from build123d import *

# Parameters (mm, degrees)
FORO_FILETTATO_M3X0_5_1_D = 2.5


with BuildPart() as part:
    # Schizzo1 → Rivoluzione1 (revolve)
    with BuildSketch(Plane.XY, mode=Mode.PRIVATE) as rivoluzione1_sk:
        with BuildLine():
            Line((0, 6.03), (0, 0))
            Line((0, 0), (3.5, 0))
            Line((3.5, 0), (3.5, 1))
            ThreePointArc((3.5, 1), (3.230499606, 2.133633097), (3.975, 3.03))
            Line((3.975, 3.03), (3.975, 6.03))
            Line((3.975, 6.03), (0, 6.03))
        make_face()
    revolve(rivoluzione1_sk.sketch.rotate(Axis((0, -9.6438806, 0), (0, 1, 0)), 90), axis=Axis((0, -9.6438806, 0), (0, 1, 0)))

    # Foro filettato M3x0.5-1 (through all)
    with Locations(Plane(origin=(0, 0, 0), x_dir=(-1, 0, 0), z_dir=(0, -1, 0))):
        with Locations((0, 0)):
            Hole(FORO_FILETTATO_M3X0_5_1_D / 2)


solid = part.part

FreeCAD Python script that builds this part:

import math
import FreeCAD as App
import Part
import Sketcher
Q = App.Units.Quantity

doc = App.newDocument("Part")
body = doc.addObject("PartDesign::Body", "Body")

sketch1 = doc.addObject("Sketcher::SketchObject", "Sketch")
body.addObject(sketch1)
sketch1.AttachmentSupport = (doc.XY_Plane, [""])
sketch1.MapMode = "FlatFace"
sketch1.addGeometry(Part.LineSegment(App.Vector(0, 6, 0), App.Vector(0, 0, 0)), False)
sketch1.addGeometry(Part.LineSegment(App.Vector(0, 0, 0), App.Vector(3.5, 0, 0)), False)
sketch1.addGeometry(Part.LineSegment(App.Vector(3.5, 0, 0), App.Vector(3.5, 1, 0)), False)
sketch1.addGeometry(Part.ArcOfCircle(Part.Circle(App.Vector(4.5, 1.8, 0), App.Vector(0, 0, 1), 1.3), math.radians(114), math.radians(220)), False)
sketch1.addGeometry(Part.LineSegment(App.Vector(4, 3, 0), App.Vector(4, 6, 0)), False)
sketch1.addGeometry(Part.LineSegment(App.Vector(4, 6, 0), App.Vector(0, 6, 0)), False)
sketch1.addConstraint(Sketcher.Constraint("Coincident", 0, 2, 1, 1))
sketch1.addConstraint(Sketcher.Constraint("Coincident", 1, 2, 2, 1))
sketch1.addConstraint(Sketcher.Constraint("Coincident", 2, 2, 3, 2))
sketch1.addConstraint(Sketcher.Constraint("Coincident", 3, 1, 4, 1))
sketch1.addConstraint(Sketcher.Constraint("Coincident", 4, 2, 5, 1))
sketch1.addConstraint(Sketcher.Constraint("Coincident", 5, 2, 0, 1))
sketch1.addConstraint(Sketcher.Constraint("Vertical", 0))
sketch1.addConstraint(Sketcher.Constraint("Horizontal", 1))
sketch1.addConstraint(Sketcher.Constraint("Vertical", 2))
sketch1.addConstraint(Sketcher.Constraint("Vertical", 4))
sketch1.addConstraint(Sketcher.Constraint("Horizontal", 5))
sketch1.addConstraint(Sketcher.Constraint("Coincident", 0, 2, -1, 1))
sketch1.addConstraint(Sketcher.Constraint("DistanceY", 2, 1, 2, 2, Q("1 mm")))
sketch1.addConstraint(Sketcher.Constraint("DistanceY", 4, 1, 4, 2, Q("3 mm")))
sketch1.addConstraint(Sketcher.Constraint("DistanceX", 1, 1, 1, 2, Q("3.5 mm")))
sketch1.addConstraint(Sketcher.Constraint("DistanceX", 1, 2, 3, 3, Q("1 mm")))
sketch1.addConstraint(Sketcher.Constraint("DistanceY", 0, 2, 0, 1, Q("6.03 mm")))
sketch1.addConstraint(Sketcher.Constraint("DistanceX", 5, 2, 5, 1, Q("3.975 mm")))
revolution = doc.addObject("PartDesign::Revolution", "Revolution")
body.addObject(revolution)
revolution.Profile = sketch1
revolution.ReferenceAxis = (sketch1, ["V_Axis"])
revolution.Angle = 360

sketch2 = doc.addObject("Sketcher::SketchObject", "Sketch001")
body.addObject(sketch2)
sketch2.AttachmentSupport = (doc.XZ_Plane, [""])
sketch2.MapMode = "FlatFace"
sketch2.addGeometry(Part.Circle(App.Vector(0, 0, 0), App.Vector(0, 0, 1), 1.2), False)
sketch2.addConstraint(Sketcher.Constraint("Coincident", 0, 3, -1, 1))
sketch2.addConstraint(Sketcher.Constraint("Diameter", 0, Q("2.5 mm")))
doc.recompute()
hole = doc.addObject("PartDesign::Hole", "Hole")
body.addObject(hole)
hole.Profile = sketch2
hole.ThreadType = "None"
hole.Diameter = 2.5
hole.DepthType = "ThroughAll"

doc.recompute()
